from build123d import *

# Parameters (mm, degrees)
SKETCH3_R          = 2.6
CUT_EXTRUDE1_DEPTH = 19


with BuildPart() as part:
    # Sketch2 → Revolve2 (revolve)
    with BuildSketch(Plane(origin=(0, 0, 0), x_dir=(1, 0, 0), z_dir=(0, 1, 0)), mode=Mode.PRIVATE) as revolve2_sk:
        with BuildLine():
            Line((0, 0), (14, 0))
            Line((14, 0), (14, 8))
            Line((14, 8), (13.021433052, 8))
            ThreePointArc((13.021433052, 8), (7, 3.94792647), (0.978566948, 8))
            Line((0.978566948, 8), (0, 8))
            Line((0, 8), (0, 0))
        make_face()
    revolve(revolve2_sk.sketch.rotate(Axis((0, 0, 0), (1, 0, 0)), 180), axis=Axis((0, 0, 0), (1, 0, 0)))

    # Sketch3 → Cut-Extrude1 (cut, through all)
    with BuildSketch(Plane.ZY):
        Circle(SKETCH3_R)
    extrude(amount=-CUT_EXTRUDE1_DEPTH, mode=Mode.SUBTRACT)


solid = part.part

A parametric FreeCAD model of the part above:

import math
import FreeCAD as App
import Part
import Sketcher

V = App.Vector

doc = App.newDocument("Part")
body = doc.addObject("PartDesign::Body", "Body")

# Sketch on XZ plane
sketch1 = doc.addObject("Sketcher::SketchObject", "Sketch")
body.addObject(sketch1)
sketch1.AttachmentSupport = (doc.XZ_Plane, [""])
sketch1.MapMode = "FlatFace"
sketch1.addGeometry([
    Part.LineSegment(V(0, 0, 0), V(14, 0, 0)),  # 0
    Part.LineSegment(V(14, 0, 0), V(14, -8, 0)),  # 1
    Part.LineSegment(V(14, -8, 0), V(13, -8, 0)),  # 2
    Part.ArcOfCircle(Part.Circle(V(7, -10.4, 0), V(0, 0, 1), 6.5), math.radians(22), math.radians(158)),  # 3
    Part.LineSegment(V(1, -8, 0), V(0, -8, 0)),  # 4
    Part.LineSegment(V(0, -8, 0), V(0, 0, 0)),  # 5
], False)
sketch1.addConstraint([
    Sketcher.Constraint("Coincident", 0, 2, 1, 1),
    Sketcher.Constraint("Coincident", 1, 2, 2, 1),
    Sketcher.Constraint("Coincident", 2, 2, 3, 1),
    Sketcher.Constraint("Coincident", 3, 2, 4, 1),
    Sketcher.Constraint("Coincident", 4, 2, 5, 1),
    Sketcher.Constraint("Coincident", 5, 2, 0, 1),
    Sketcher.Constraint("Horizontal", 0),
    Sketcher.Constraint("Vertical", 1),
    Sketcher.Constraint("Horizontal", 2),
    Sketcher.Constraint("Horizontal", 4),
    Sketcher.Constraint("Vertical", 5),
    Sketcher.Constraint("Coincident", 5, 2, -1, 1),
    Sketcher.Constraint("Horizontal", 2, 2, 3, 2),
    Sketcher.Constraint("Equal", 2, 4),
    Sketcher.Constraint("Radius", 3, 6.5),
    Sketcher.Constraint("DistanceX", 0, 1, 0, 2, 14.0),
    Sketcher.Constraint("DistanceY", 1, 2, 1, 1, 8.0),
    Sketcher.Constraint("DistanceX", 2, 2, 2, 1, 0.978567),
])
revolution = doc.addObject("PartDesign::Revolution", "Revolution")
body.addObject(revolution)
revolution.Profile = sketch1
revolution.ReferenceAxis = (sketch1, ["H_Axis"])
revolution.Angle = 360

# Sketch on YZ plane
sketch2 = doc.addObject("Sketcher::SketchObject", "Sketch001")
body.addObject(sketch2)
sketch2.AttachmentSupport = (doc.YZ_Plane, [""])
sketch2.MapMode = "FlatFace"
sketch2.addGeometry(Part.Circle(V(0, 0, 0), V(0, 0, 1), 2.6), False)
sketch2.addConstraint([
    Sketcher.Constraint("Coincident", 0, 3, -1, 1),
    Sketcher.Constraint("Diameter", 0, 5.2),
])
pocket1 = doc.addObject("PartDesign::Pocket", "Pocket")
body.addObject(pocket1)
pocket1.Profile = sketch2
pocket1.Type = "ThroughAll"
pocket1.Reversed = True

doc.recompute()
